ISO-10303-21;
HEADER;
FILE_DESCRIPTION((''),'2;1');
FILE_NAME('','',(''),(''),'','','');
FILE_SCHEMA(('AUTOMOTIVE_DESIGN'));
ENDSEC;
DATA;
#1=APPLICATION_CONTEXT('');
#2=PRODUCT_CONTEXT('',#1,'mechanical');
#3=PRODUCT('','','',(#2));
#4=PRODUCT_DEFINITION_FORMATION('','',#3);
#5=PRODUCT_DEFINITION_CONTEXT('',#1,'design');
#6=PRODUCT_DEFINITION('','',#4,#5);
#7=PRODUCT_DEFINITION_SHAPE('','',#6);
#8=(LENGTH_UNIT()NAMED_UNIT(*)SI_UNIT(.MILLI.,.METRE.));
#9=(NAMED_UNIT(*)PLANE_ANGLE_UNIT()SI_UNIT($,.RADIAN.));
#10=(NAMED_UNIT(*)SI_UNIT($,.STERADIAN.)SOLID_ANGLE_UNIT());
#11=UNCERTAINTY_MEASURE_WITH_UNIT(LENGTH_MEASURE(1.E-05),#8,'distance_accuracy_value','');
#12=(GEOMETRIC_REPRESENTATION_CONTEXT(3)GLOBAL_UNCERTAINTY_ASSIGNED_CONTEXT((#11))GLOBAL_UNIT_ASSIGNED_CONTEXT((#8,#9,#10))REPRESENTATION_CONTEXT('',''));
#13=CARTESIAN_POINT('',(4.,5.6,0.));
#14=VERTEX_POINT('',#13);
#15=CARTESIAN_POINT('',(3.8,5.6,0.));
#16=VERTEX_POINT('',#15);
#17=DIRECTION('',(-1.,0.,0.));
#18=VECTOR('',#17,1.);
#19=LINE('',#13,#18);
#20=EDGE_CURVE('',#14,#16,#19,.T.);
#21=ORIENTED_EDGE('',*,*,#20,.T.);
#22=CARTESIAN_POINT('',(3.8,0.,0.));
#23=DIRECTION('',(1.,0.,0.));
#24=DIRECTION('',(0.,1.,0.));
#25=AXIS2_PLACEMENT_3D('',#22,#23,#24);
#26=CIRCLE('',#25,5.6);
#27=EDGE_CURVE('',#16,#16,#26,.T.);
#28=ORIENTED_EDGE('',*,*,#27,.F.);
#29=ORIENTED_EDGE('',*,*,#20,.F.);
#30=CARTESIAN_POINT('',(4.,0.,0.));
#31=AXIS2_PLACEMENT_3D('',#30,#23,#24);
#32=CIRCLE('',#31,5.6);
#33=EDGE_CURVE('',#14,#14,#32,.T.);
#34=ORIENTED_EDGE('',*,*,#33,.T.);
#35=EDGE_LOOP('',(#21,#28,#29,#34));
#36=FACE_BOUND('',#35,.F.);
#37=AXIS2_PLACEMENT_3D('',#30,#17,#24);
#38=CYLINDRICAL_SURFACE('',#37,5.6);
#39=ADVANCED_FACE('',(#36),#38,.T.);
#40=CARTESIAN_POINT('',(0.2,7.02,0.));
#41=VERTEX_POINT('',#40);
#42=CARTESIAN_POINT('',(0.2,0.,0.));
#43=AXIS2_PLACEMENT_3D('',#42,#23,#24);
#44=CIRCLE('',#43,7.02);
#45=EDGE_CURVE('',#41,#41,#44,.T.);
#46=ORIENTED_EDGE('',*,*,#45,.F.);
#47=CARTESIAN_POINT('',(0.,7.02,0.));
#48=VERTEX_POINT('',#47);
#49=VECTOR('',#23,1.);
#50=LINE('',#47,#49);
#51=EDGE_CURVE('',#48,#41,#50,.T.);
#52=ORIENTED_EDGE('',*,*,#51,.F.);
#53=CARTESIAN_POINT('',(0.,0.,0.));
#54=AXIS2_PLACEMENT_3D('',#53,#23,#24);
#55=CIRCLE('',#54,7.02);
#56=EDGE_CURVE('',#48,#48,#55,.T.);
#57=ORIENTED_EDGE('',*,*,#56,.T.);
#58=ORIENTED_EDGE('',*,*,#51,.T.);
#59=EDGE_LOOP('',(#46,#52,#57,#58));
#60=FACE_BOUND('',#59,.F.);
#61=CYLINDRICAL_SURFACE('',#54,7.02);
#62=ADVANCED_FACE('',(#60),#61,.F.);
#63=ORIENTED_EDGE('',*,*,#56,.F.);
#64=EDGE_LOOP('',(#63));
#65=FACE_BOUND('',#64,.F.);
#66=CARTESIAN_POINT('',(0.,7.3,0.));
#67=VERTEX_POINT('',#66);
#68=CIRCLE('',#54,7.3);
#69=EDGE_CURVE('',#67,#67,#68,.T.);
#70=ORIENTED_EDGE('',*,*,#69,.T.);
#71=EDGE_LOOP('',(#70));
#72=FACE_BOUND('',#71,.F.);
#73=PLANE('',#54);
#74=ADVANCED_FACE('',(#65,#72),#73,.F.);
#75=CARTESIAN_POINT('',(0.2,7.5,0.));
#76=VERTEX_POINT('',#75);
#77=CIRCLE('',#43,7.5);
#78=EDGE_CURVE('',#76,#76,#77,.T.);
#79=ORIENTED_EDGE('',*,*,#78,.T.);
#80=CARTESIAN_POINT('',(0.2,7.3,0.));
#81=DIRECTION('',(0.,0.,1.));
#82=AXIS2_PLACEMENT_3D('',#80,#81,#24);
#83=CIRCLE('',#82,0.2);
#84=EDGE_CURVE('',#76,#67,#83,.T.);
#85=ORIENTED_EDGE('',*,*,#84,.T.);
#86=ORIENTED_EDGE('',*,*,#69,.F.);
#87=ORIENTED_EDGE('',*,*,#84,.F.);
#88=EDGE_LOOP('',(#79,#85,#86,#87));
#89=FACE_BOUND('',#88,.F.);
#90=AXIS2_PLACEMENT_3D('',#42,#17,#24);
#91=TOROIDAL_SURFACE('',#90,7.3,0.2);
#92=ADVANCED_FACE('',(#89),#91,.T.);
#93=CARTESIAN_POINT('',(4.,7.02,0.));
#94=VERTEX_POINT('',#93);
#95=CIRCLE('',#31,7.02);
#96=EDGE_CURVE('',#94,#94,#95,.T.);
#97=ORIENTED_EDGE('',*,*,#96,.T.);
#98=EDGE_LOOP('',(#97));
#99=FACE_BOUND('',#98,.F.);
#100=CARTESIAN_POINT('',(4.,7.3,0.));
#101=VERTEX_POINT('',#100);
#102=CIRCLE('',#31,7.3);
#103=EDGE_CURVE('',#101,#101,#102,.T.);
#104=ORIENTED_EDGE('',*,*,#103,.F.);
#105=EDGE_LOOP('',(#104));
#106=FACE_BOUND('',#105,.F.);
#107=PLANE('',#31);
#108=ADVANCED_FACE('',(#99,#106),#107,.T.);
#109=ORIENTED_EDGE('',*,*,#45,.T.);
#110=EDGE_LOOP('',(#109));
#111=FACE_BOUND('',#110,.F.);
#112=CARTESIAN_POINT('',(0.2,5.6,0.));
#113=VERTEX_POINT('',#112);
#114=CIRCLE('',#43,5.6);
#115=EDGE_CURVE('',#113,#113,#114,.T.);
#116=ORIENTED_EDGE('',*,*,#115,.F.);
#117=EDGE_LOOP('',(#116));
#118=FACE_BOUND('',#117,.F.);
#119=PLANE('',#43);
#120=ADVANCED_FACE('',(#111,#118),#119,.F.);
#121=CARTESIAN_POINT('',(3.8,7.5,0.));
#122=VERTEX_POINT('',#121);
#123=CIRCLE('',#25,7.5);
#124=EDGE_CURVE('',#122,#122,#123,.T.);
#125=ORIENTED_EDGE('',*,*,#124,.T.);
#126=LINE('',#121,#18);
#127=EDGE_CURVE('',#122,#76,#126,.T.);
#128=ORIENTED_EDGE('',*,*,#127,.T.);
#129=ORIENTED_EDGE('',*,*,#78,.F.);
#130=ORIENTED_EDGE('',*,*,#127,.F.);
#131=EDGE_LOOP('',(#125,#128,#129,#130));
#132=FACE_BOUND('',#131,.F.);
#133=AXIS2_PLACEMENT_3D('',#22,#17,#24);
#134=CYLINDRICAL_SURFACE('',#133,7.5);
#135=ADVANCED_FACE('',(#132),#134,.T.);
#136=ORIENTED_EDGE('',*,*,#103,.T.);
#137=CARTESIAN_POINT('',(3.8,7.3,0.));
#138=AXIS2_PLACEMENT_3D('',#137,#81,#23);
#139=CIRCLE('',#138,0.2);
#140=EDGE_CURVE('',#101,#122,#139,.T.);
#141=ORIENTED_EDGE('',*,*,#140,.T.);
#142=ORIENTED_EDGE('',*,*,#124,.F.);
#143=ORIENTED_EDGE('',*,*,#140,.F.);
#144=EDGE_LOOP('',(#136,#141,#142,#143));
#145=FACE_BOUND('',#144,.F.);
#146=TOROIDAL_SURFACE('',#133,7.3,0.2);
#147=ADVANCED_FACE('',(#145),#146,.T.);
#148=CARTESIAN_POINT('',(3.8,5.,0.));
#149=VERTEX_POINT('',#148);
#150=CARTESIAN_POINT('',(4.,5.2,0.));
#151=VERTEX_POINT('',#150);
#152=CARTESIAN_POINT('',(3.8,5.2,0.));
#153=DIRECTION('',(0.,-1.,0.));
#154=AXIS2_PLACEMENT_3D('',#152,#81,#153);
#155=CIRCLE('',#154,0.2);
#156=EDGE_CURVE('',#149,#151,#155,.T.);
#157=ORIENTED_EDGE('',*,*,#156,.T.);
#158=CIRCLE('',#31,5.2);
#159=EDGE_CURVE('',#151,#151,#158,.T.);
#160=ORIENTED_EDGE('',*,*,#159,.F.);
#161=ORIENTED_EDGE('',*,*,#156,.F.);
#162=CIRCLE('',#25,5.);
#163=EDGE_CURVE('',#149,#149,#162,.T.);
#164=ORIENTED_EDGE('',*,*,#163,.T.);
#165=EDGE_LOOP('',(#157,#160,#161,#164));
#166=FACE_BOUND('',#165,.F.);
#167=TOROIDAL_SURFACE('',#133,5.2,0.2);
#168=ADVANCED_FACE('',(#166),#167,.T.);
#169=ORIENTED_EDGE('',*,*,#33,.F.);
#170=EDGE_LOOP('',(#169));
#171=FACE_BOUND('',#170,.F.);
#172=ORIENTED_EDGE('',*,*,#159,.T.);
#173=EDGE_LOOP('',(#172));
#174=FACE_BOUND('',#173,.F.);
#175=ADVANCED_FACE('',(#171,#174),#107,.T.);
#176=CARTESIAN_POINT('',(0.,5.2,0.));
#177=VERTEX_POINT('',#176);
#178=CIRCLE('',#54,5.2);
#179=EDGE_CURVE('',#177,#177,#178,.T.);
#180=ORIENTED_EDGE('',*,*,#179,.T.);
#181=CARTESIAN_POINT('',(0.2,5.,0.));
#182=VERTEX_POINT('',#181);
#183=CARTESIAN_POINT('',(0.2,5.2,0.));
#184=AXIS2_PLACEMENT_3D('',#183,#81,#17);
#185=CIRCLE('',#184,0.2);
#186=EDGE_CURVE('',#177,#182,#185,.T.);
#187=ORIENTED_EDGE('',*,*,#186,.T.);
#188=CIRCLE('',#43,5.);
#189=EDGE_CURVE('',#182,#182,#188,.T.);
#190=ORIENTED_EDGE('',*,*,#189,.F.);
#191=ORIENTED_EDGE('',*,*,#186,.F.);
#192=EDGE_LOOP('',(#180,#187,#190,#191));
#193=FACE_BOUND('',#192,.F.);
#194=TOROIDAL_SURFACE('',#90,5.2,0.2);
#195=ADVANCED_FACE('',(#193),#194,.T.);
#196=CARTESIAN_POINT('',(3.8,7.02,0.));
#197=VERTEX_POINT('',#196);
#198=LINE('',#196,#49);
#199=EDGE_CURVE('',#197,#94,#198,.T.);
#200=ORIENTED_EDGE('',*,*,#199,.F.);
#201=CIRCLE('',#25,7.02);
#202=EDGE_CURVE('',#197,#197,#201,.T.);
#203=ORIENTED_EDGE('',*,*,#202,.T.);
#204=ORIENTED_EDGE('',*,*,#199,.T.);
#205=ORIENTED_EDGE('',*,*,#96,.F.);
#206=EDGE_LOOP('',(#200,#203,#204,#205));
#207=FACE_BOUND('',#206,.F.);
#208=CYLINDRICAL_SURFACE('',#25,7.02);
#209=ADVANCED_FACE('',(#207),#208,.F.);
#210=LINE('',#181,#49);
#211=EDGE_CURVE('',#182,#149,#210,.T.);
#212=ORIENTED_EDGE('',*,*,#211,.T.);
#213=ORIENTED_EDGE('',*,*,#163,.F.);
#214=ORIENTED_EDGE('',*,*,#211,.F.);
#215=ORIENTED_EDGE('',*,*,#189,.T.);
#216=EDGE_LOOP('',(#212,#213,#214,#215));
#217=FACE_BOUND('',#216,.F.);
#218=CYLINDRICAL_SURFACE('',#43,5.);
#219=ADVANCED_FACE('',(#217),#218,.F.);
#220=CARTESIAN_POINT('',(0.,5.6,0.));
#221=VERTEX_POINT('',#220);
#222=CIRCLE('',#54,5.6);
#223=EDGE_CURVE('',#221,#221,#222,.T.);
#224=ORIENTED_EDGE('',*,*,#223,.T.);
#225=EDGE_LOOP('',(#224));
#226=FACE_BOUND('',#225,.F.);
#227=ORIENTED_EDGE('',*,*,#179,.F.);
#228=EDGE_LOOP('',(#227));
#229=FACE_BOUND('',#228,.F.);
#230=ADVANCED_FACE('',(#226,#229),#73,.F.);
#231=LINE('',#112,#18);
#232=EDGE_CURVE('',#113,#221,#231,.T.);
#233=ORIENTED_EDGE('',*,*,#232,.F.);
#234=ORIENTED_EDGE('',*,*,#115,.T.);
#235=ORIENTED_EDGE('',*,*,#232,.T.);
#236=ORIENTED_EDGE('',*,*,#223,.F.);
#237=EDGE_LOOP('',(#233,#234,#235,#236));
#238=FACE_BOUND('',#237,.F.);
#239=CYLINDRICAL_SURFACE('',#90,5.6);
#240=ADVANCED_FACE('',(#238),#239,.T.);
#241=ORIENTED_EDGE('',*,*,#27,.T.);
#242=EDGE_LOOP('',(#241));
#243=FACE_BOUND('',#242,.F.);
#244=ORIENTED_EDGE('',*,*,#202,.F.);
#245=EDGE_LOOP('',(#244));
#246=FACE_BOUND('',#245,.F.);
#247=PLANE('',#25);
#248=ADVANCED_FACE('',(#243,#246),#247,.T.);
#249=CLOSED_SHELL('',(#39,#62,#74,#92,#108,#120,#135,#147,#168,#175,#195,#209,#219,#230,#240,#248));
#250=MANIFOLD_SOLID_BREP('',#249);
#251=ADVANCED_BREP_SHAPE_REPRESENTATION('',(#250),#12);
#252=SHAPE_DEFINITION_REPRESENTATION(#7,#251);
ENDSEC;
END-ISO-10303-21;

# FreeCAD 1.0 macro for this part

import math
import FreeCAD as App
import Part
import Sketcher

V = App.Vector
Q = App.Units.Quantity

doc = App.newDocument("Part")
body = doc.addObject("PartDesign::Body", "Body")

# Sketch on XY plane
sketch1 = doc.addObject("Sketcher::SketchObject", "Sketch")
body.addObject(sketch1)
sketch1.AttachmentSupport = (doc.XY_Plane, [""])
sketch1.MapMode = "FlatFace"
sketch1.addGeometry(Part.LineSegment(V(0, 5.6, 0), V(0, 5.2, 0)), False)
sketch1.addGeometry(Part.ArcOfCircle(Part.Circle(V(0.2, 5.2, 0), V(0, 0, 1), 0.2), math.radians(180), math.radians(270)), False)
sketch1.addGeometry(Part.LineSegment(V(0.2, 5, 0), V(3.8, 5, 0)), False)
sketch1.addGeometry(Part.ArcOfCircle(Part.Circle(V(3.8, 5.2, 0), V(0, 0, 1), 0.2), math.radians(-90), math.radians(0)), False)
sketch1.addGeometry(Part.LineSegment(V(4, 5.2, 0), V(4, 5.6, 0)), False)
sketch1.addGeometry(Part.LineSegment(V(4, 5.6, 0), V(3.8, 5.6, 0)), False)
sketch1.addGeometry(Part.LineSegment(V(3.8, 5.6, 0), V(3.8, 7.02, 0)), False)
sketch1.addGeometry(Part.LineSegment(V(3.8, 7.02, 0), V(4, 7.02, 0)), False)
sketch1.addGeometry(Part.LineSegment(V(4, 7.02, 0), V(4, 7.3, 0)), False)
sketch1.addGeometry(Part.ArcOfCircle(Part.Circle(V(3.8, 7.3, 0), V(0, 0, 1), 0.2), math.radians(0), math.radians(90)), False)
sketch1.addGeometry(Part.LineSegment(V(3.8, 7.5, 0), V(0.2, 7.5, 0)), False)
sketch1.addGeometry(Part.ArcOfCircle(Part.Circle(V(0.2, 7.3, 0), V(0, 0, 1), 0.2), math.radians(90), math.radians(180)), False)
sketch1.addGeometry(Part.LineSegment(V(0, 7.3, 0), V(0, 7.02, 0)), False)
sketch1.addGeometry(Part.LineSegment(V(0, 7.02, 0), V(0.2, 7.02, 0)), False)
sketch1.addGeometry(Part.LineSegment(V(0.2, 7.02, 0), V(0.2, 5.6, 0)), False)
sketch1.addGeometry(Part.LineSegment(V(0.2, 5.6, 0), V(0, 5.6, 0)), False)
sketch1.addConstraint(Sketcher.Constraint("Tangent", 0, 2, 1, 1))
sketch1.addConstraint(Sketcher.Constraint("Tangent", 1, 2, 2, 1))
sketch1.addConstraint(Sketcher.Constraint("Tangent", 2, 2, 3, 1))
sketch1.addConstraint(Sketcher.Constraint("Tangent", 3, 2, 4, 1))
sketch1.addConstraint(Sketcher.Constraint("Coincident", 4, 2, 5, 1))
sketch1.addConstraint(Sketcher.Constraint("Coincident", 5, 2, 6, 1))
sketch1.addConstraint(Sketcher.Constraint("Coincident", 6, 2, 7, 1))
sketch1.addConstraint(Sketcher.Constraint("Coincident", 7, 2, 8, 1))
sketch1.addConstraint(Sketcher.Constraint("Tangent", 8, 2, 9, 1))
sketch1.addConstraint(Sketcher.Constraint("Tangent", 9, 2, 10, 1))
sketch1.addConstraint(Sketcher.Constraint("Tangent", 10, 2, 11, 1))
sketch1.addConstraint(Sketcher.Constraint("Tangent", 11, 2, 12, 1))
sketch1.addConstraint(Sketcher.Constraint("Coincident", 12, 2, 13, 1))
sketch1.addConstraint(Sketcher.Constraint("Coincident", 13, 2, 14, 1))
sketch1.addConstraint(Sketcher.Constraint("Coincident", 14, 2, 15, 1))
sketch1.addConstraint(Sketcher.Constraint("Coincident", 15, 2, 0, 1))
sketch1.addConstraint(Sketcher.Constraint("Vertical", 0))
sketch1.addConstraint(Sketcher.Constraint("Horizontal", 2))
sketch1.addConstraint(Sketcher.Constraint("Vertical", 4))
sketch1.addConstraint(Sketcher.Constraint("Horizontal", 5))
sketch1.addConstraint(Sketcher.Constraint("Vertical", 6))
sketch1.addConstraint(Sketcher.Constraint("Horizontal", 7))
sketch1.addConstraint(Sketcher.Constraint("Vertical", 8))
sketch1.addConstraint(Sketcher.Constraint("Horizontal", 10))
sketch1.addConstraint(Sketcher.Constraint("Vertical", 12))
sketch1.addConstraint(Sketcher.Constraint("Horizontal", 13))
sketch1.addConstraint(Sketcher.Constraint("Vertical", 14))
sketch1.addConstraint(Sketcher.Constraint("Horizontal", 15))
sketch1.addConstraint(Sketcher.Constraint("Equal", 1, 3))
sketch1.addConstraint(Sketcher.Constraint("Equal", 3, 9))
sketch1.addConstraint(Sketcher.Constraint("Equal", 9, 11))
sketch1.addConstraint(Sketcher.Constraint("PointOnObject", 0, 2, -2))
sketch1.addConstraint(Sketcher.Constraint("PointOnObject", 11, 2, -2))
sketch1.addConstraint(Sketcher.Constraint("Horizontal", 7, 2, 12, 2))
sketch1.addConstraint(Sketcher.Constraint("Horizontal", 5, 2, 14, 2))
sketch1.addConstraint(Sketcher.Constraint("Vertical", 3, 3, 9, 3))
sketch1.addConstraint(Sketcher.Constraint("Vertical", 2, 2, 5, 2))
sketch1.addConstraint(Sketcher.Constraint("Vertical", 10, 2, 13, 2))
sketch1.addConstraint(Sketcher.Constraint("Radius", 1, Q("0.2 mm")))
sketch1.addConstraint(Sketcher.Constraint("DistanceX", 2, 1, 2, 2, Q("3.6 mm")))
sketch1.addConstraint(Sketcher.Constraint("DistanceY", 0, 2, 0, 1, Q("0.4 mm")))
sketch1.addConstraint(Sketcher.Constraint("DistanceY", -1, 1, 1, 2, Q("5 mm")))
sketch1.addConstraint(Sketcher.Constraint("DistanceY", 6, 1, 6, 2, Q("1.42 mm")))
sketch1.addConstraint(Sketcher.Constraint("DistanceY", 8, 1, 8, 2, Q("0.28 mm")))
revolution = doc.addObject("PartDesign::Revolution", "Revolution")
body.addObject(revolution)
revolution.Profile = sketch1
revolution.ReferenceAxis = (sketch1, ["H_Axis"])
revolution.Angle = 360

doc.recompute()
